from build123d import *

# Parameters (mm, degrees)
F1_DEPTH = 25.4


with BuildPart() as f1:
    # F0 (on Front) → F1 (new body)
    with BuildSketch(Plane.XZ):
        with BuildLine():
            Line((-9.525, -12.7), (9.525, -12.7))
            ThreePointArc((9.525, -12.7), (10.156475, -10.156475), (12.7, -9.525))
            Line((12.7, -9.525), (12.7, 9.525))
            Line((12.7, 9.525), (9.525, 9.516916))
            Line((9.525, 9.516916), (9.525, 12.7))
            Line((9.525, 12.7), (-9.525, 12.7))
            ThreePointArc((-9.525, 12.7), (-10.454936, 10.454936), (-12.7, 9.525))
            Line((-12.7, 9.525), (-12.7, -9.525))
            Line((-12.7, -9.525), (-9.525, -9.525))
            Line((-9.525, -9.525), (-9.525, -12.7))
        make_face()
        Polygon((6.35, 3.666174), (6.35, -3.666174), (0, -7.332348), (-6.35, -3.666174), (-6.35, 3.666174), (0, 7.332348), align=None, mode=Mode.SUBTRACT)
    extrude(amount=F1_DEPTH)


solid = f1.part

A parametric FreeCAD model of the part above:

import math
import FreeCAD as App
import Part
import Sketcher
from FreeCAD import Vector
Q = App.Units.Quantity

doc = App.newDocument("Part")
body = doc.addObject("PartDesign::Body", "Body")

# Sketch on XZ plane
sketch1 = doc.addObject("Sketcher::SketchObject", "Sketch")
body.addObject(sketch1)
sketch1.AttachmentSupport = (doc.XZ_Plane, [""])
sketch1.MapMode = "FlatFace"
sketch1.addGeometry([
    Part.LineSegment(Vector(-9.5, -12.7, 0), Vector(9.5, -12.7, 0)),  # 0
    Part.ArcOfCircle(Part.Circle(Vector(12, -12, 0), Vector(0, 0, 1), 2.5), math.radians(73), math.radians(197)),  # 1
    Part.LineSegment(Vector(12.7, -9.5, 0), Vector(12.7, 9.5, 0)),  # 2
    Part.LineSegment(Vector(12.7, 9.5, 0), Vector(9.5, 9.5, 0)),  # 3
    Part.LineSegment(Vector(9.5, 9.5, 0), Vector(9.5, 12.7, 0)),  # 4
    Part.LineSegment(Vector(9.5, 12.7, 0), Vector(-9.5, 12.7, 0)),  # 5
    Part.ArcOfCircle(Part.Circle(Vector(-12.7, 12.7, 0), Vector(0, 0, 1), 3.2), math.radians(-90), math.radians(0)),  # 6
    Part.LineSegment(Vector(-12.7, 9.5, 0), Vector(-12.7, -9.5, 0)),  # 7
    Part.LineSegment(Vector(-12.7, -9.5, 0), Vector(-9.5, -9.5, 0)),  # 8
    Part.LineSegment(Vector(-9.5, -9.5, 0), Vector(-9.5, -12.7, 0)),  # 9
    Part.LineSegment(Vector(0, 7.3, 0), Vector(6.3, 3.7, 0)),  # 10
    Part.LineSegment(Vector(6.3, 3.7, 0), Vector(6.3, -3.7, 0)),  # 11
    Part.LineSegment(Vector(6.3, -3.7, 0), Vector(0, -7.3, 0)),  # 12
    Part.LineSegment(Vector(0, -7.3, 0), Vector(-6.3, -3.7, 0)),  # 13
    Part.LineSegment(Vector(-6.3, -3.7, 0), Vector(-6.3, 3.7, 0)),  # 14
    Part.LineSegment(Vector(-6.3, 3.7, 0), Vector(0, 7.3, 0)),  # 15
], False)
sketch1.addConstraint([
    Sketcher.Constraint("Coincident", 0, 2, 1, 2),
    Sketcher.Constraint("Coincident", 1, 1, 2, 1),
    Sketcher.Constraint("Coincident", 2, 2, 3, 1),
    Sketcher.Constraint("Coincident", 3, 2, 4, 1),
    Sketcher.Constraint("Coincident", 4, 2, 5, 1),
    Sketcher.Constraint("Coincident", 5, 2, 6, 2),
    Sketcher.Constraint("Coincident", 6, 1, 7, 1),
    Sketcher.Constraint("Coincident", 7, 2, 8, 1),
    Sketcher.Constraint("Coincident", 8, 2, 9, 1),
    Sketcher.Constraint("Coincident", 9, 2, 0, 1),
    Sketcher.Constraint("Coincident", 10, 2, 11, 1),
    Sketcher.Constraint("Coincident", 11, 2, 12, 1),
    Sketcher.Constraint("Coincident", 12, 2, 13, 1),
    Sketcher.Constraint("Coincident", 13, 2, 14, 1),
    Sketcher.Constraint("Coincident", 14, 2, 15, 1),
    Sketcher.Constraint("Coincident", 15, 2, 10, 1),
    Sketcher.Constraint("Horizontal", 0),
    Sketcher.Constraint("Vertical", 2),
    Sketcher.Constraint("Vertical", 4),
    Sketcher.Constraint("Horizontal", 5),
    Sketcher.Constraint("Vertical", 7),
    Sketcher.Constraint("Horizontal", 8),
    Sketcher.Constraint("Vertical", 9),
    Sketcher.Constraint("Vertical", 11),
    Sketcher.Constraint("Vertical", 14),
    Sketcher.Constraint("Symmetric", 0, 2, 5, 2, -1, 1),
    Sketcher.Constraint("Symmetric", 1, 1, 6, 1, -1, 1),
    Sketcher.Constraint("Symmetric", 10, 2, 13, 2, -1, 1),
    Sketcher.Constraint("Symmetric", 12, 2, 15, 2, -1, 1),
    Sketcher.Constraint("PointOnObject", 12, 2, -2),
    Sketcher.Constraint("Parallel", 12, 15),
    Sketcher.Constraint("Horizontal", 6, 3, 4, 2),
    Sketcher.Constraint("Horizontal", 2, 2, 6, 1),
    Sketcher.Constraint("Horizontal", 1, 1, 7, 2),
    Sketcher.Constraint("Horizontal", 11, 2, 13, 2),
    Sketcher.Constraint("Vertical", 0, 2, 3, 2),
    Sketcher.Constraint("Vertical", 5, 2, 8, 2),
    Sketcher.Constraint("Equal", 5, 2),
    Sketcher.Constraint("Equal", 8, 9),
    Sketcher.Constraint("Radius", 1, Q("0.1 in")),
    Sketcher.Constraint("Angle", 10, Q("-29.999999 deg")),
    Sketcher.Constraint("Radius", 6, Q("0.125 in")),
    Sketcher.Constraint("DistanceY", 0, 2, 6, 3, Q("1 in")),
    Sketcher.Constraint("DistanceX", 13, 2, 11, 2, Q("0.5 in")),
    Sketcher.Constraint("DistanceY", 1, 3, 10, 2, 15.6187),
    Sketcher.Constraint("DistanceY", 4, 1, 4, 2, 3.183084),
])
pad1 = doc.addObject("PartDesign::Pad", "Pad")
body.addObject(pad1)
pad1.Profile = sketch1
pad1.Length = Q("1 in")

doc.recompute()
